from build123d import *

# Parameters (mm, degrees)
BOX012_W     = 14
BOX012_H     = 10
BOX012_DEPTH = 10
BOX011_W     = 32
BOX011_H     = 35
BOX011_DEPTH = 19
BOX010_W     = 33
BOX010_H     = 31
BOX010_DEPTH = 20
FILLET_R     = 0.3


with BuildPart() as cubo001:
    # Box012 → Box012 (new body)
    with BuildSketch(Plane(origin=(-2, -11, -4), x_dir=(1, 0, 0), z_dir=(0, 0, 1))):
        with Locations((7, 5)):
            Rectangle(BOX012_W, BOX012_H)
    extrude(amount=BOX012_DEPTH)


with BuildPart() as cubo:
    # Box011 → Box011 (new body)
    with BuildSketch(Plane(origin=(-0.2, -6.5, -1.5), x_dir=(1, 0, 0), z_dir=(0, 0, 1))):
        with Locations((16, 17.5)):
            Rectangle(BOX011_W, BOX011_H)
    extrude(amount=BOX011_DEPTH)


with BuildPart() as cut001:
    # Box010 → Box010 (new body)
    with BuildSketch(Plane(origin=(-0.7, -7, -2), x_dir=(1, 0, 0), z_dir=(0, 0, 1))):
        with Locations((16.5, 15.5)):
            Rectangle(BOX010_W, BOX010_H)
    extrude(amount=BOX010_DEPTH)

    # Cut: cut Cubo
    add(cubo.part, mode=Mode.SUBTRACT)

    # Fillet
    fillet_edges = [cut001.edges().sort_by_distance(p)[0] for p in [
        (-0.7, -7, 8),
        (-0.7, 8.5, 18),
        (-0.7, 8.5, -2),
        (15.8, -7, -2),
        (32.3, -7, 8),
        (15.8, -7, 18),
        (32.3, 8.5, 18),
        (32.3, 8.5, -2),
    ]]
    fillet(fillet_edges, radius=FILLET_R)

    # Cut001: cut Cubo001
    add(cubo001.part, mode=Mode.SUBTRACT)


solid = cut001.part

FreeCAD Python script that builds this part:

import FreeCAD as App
import Part
import Sketcher
Q = App.Units.Quantity


def edges_at(feature, points):
    """Names of the edges that pass closest to the given points."""
    edges = feature.Shape.Edges
    near = lambda p: min(range(len(edges)), key=lambda i: edges[i].distToShape(Part.Vertex(*p))[0])
    return sorted({f"Edge{near(p) + 1}" for p in points})


def add_polygon(sketch, points):
    """Adds a closed chain of lines whose ends are joined by coincident constraints."""
    first, n = sketch.GeometryCount, len(points)
    for a, b in zip(points, points[1:] + points[:1]):
        sketch.addGeometry(Part.LineSegment(App.Vector(*a, 0), App.Vector(*b, 0)), False)
    for i in range(n):
        sketch.addConstraint(Sketcher.Constraint("Coincident", first + i, 2, first + (i + 1) % n, 1))

doc = App.newDocument("Part")
body = doc.addObject("PartDesign::Body", "Body")

# Sketch on XY plane
sketch1 = doc.addObject("Sketcher::SketchObject", "Sketch")
body.addObject(sketch1)
sketch1.AttachmentSupport = (doc.XY_Plane, [""])
sketch1.MapMode = "FlatFace"
sketch1.AttachmentOffset = App.Placement(App.Vector(0, 0, -4), App.Rotation())
add_polygon(sketch1, [(-2, -1), (-2, -11), (12, -11), (12, -1)])  # lines 0-3
sketch1.addConstraint([
    Sketcher.Constraint("Vertical", 0),
    Sketcher.Constraint("Horizontal", 1),
    Sketcher.Constraint("Vertical", 2),
    Sketcher.Constraint("Horizontal", 3),
    Sketcher.Constraint("DistanceX", 1, 1, 1, 2, Q("14 mm")),
    Sketcher.Constraint("DistanceY", 0, 2, 0, 1, Q("10 mm")),
    Sketcher.Constraint("DistanceX", 0, 2, -1, 1, Q("2 mm")),
    Sketcher.Constraint("DistanceY", 0, 2, -1, 1, Q("11 mm")),
])
pad1 = doc.addObject("PartDesign::Pad", "Pad")
body.addObject(pad1)
pad1.Profile = sketch1
pad1.Length = 10
body2 = doc.addObject("PartDesign::Body", "Body001")

# Sketch on XY plane
sketch2 = doc.addObject("Sketcher::SketchObject", "Sketch001")
body2.addObject(sketch2)
sketch2.AttachmentSupport = (doc.getObject("XY_Plane001"), [""])
sketch2.MapMode = "FlatFace"
sketch2.AttachmentOffset = App.Placement(App.Vector(0, 0, -1.5), App.Rotation())
add_polygon(sketch2, [(0, 28), (0, -6), (32, -6), (32, 28)])  # lines 0-3
sketch2.addConstraint([
    Sketcher.Constraint("Vertical", 0),
    Sketcher.Constraint("Horizontal", 1),
    Sketcher.Constraint("Vertical", 2),
    Sketcher.Constraint("Horizontal", 3),
    Sketcher.Constraint("DistanceX", 1, 1, 1, 2, Q("32 mm")),
    Sketcher.Constraint("DistanceY", 0, 2, 0, 1, Q("35 mm")),
    Sketcher.Constraint("DistanceX", 0, 2, -1, 1, Q("0.2 mm")),
    Sketcher.Constraint("DistanceY", 0, 2, -1, 1, Q("6.5 mm")),
])
pad2 = doc.addObject("PartDesign::Pad", "Pad001")
body2.addObject(pad2)
pad2.Profile = sketch2
pad2.Length = 19
body3 = doc.addObject("PartDesign::Body", "Body002")

# Sketch on XY plane
sketch3 = doc.addObject("Sketcher::SketchObject", "Sketch002")
body3.addObject(sketch3)
sketch3.AttachmentSupport = (doc.getObject("XY_Plane002"), [""])
sketch3.MapMode = "FlatFace"
sketch3.AttachmentOffset = App.Placement(App.Vector(0, 0, -2), App.Rotation())
add_polygon(sketch3, [(-1, 24), (-1, -7), (32, -7), (32, 24)])  # lines 0-3
sketch3.addConstraint([
    Sketcher.Constraint("Vertical", 0),
    Sketcher.Constraint("Horizontal", 1),
    Sketcher.Constraint("Vertical", 2),
    Sketcher.Constraint("Horizontal", 3),
    Sketcher.Constraint("DistanceX", 1, 1, 1, 2, Q("33 mm")),
    Sketcher.Constraint("DistanceY", 0, 2, 0, 1, Q("31 mm")),
    Sketcher.Constraint("DistanceY", 0, 2, -1, 1, Q("7 mm")),
    Sketcher.Constraint("DistanceX", 0, 2, -1, 1, Q("0.7 mm")),
])
pad3 = doc.addObject("PartDesign::Pad", "Pad002")
body3.addObject(pad3)
pad3.Profile = sketch3
pad3.Length = 20
doc.recompute()

boolean = doc.addObject("PartDesign::Boolean", "Boolean")
body3.addObject(boolean)
boolean.Type = "Cut"
boolean.addObjects([body2])
doc.recompute()

fillet = doc.addObject("PartDesign::Fillet", "Fillet")
body3.addObject(fillet)
fillet.Base = (boolean, edges_at(boolean, [
    (-0.7, -7, 8),
    (-0.7, 8.5, 18),
    (-0.7, 8.5, -2),
    (15.8, -7, -2),
    (32.3, -7, 8),
    (15.8, -7, 18),
    (32.3, 8.5, 18),
    (32.3, 8.5, -2),
]))
fillet.Radius = 0.3
doc.recompute()

boolean2 = doc.addObject("PartDesign::Boolean", "Boolean001")
body3.addObject(boolean2)
boolean2.Type = "Cut"
boolean2.addObjects([body])

doc.recompute()
